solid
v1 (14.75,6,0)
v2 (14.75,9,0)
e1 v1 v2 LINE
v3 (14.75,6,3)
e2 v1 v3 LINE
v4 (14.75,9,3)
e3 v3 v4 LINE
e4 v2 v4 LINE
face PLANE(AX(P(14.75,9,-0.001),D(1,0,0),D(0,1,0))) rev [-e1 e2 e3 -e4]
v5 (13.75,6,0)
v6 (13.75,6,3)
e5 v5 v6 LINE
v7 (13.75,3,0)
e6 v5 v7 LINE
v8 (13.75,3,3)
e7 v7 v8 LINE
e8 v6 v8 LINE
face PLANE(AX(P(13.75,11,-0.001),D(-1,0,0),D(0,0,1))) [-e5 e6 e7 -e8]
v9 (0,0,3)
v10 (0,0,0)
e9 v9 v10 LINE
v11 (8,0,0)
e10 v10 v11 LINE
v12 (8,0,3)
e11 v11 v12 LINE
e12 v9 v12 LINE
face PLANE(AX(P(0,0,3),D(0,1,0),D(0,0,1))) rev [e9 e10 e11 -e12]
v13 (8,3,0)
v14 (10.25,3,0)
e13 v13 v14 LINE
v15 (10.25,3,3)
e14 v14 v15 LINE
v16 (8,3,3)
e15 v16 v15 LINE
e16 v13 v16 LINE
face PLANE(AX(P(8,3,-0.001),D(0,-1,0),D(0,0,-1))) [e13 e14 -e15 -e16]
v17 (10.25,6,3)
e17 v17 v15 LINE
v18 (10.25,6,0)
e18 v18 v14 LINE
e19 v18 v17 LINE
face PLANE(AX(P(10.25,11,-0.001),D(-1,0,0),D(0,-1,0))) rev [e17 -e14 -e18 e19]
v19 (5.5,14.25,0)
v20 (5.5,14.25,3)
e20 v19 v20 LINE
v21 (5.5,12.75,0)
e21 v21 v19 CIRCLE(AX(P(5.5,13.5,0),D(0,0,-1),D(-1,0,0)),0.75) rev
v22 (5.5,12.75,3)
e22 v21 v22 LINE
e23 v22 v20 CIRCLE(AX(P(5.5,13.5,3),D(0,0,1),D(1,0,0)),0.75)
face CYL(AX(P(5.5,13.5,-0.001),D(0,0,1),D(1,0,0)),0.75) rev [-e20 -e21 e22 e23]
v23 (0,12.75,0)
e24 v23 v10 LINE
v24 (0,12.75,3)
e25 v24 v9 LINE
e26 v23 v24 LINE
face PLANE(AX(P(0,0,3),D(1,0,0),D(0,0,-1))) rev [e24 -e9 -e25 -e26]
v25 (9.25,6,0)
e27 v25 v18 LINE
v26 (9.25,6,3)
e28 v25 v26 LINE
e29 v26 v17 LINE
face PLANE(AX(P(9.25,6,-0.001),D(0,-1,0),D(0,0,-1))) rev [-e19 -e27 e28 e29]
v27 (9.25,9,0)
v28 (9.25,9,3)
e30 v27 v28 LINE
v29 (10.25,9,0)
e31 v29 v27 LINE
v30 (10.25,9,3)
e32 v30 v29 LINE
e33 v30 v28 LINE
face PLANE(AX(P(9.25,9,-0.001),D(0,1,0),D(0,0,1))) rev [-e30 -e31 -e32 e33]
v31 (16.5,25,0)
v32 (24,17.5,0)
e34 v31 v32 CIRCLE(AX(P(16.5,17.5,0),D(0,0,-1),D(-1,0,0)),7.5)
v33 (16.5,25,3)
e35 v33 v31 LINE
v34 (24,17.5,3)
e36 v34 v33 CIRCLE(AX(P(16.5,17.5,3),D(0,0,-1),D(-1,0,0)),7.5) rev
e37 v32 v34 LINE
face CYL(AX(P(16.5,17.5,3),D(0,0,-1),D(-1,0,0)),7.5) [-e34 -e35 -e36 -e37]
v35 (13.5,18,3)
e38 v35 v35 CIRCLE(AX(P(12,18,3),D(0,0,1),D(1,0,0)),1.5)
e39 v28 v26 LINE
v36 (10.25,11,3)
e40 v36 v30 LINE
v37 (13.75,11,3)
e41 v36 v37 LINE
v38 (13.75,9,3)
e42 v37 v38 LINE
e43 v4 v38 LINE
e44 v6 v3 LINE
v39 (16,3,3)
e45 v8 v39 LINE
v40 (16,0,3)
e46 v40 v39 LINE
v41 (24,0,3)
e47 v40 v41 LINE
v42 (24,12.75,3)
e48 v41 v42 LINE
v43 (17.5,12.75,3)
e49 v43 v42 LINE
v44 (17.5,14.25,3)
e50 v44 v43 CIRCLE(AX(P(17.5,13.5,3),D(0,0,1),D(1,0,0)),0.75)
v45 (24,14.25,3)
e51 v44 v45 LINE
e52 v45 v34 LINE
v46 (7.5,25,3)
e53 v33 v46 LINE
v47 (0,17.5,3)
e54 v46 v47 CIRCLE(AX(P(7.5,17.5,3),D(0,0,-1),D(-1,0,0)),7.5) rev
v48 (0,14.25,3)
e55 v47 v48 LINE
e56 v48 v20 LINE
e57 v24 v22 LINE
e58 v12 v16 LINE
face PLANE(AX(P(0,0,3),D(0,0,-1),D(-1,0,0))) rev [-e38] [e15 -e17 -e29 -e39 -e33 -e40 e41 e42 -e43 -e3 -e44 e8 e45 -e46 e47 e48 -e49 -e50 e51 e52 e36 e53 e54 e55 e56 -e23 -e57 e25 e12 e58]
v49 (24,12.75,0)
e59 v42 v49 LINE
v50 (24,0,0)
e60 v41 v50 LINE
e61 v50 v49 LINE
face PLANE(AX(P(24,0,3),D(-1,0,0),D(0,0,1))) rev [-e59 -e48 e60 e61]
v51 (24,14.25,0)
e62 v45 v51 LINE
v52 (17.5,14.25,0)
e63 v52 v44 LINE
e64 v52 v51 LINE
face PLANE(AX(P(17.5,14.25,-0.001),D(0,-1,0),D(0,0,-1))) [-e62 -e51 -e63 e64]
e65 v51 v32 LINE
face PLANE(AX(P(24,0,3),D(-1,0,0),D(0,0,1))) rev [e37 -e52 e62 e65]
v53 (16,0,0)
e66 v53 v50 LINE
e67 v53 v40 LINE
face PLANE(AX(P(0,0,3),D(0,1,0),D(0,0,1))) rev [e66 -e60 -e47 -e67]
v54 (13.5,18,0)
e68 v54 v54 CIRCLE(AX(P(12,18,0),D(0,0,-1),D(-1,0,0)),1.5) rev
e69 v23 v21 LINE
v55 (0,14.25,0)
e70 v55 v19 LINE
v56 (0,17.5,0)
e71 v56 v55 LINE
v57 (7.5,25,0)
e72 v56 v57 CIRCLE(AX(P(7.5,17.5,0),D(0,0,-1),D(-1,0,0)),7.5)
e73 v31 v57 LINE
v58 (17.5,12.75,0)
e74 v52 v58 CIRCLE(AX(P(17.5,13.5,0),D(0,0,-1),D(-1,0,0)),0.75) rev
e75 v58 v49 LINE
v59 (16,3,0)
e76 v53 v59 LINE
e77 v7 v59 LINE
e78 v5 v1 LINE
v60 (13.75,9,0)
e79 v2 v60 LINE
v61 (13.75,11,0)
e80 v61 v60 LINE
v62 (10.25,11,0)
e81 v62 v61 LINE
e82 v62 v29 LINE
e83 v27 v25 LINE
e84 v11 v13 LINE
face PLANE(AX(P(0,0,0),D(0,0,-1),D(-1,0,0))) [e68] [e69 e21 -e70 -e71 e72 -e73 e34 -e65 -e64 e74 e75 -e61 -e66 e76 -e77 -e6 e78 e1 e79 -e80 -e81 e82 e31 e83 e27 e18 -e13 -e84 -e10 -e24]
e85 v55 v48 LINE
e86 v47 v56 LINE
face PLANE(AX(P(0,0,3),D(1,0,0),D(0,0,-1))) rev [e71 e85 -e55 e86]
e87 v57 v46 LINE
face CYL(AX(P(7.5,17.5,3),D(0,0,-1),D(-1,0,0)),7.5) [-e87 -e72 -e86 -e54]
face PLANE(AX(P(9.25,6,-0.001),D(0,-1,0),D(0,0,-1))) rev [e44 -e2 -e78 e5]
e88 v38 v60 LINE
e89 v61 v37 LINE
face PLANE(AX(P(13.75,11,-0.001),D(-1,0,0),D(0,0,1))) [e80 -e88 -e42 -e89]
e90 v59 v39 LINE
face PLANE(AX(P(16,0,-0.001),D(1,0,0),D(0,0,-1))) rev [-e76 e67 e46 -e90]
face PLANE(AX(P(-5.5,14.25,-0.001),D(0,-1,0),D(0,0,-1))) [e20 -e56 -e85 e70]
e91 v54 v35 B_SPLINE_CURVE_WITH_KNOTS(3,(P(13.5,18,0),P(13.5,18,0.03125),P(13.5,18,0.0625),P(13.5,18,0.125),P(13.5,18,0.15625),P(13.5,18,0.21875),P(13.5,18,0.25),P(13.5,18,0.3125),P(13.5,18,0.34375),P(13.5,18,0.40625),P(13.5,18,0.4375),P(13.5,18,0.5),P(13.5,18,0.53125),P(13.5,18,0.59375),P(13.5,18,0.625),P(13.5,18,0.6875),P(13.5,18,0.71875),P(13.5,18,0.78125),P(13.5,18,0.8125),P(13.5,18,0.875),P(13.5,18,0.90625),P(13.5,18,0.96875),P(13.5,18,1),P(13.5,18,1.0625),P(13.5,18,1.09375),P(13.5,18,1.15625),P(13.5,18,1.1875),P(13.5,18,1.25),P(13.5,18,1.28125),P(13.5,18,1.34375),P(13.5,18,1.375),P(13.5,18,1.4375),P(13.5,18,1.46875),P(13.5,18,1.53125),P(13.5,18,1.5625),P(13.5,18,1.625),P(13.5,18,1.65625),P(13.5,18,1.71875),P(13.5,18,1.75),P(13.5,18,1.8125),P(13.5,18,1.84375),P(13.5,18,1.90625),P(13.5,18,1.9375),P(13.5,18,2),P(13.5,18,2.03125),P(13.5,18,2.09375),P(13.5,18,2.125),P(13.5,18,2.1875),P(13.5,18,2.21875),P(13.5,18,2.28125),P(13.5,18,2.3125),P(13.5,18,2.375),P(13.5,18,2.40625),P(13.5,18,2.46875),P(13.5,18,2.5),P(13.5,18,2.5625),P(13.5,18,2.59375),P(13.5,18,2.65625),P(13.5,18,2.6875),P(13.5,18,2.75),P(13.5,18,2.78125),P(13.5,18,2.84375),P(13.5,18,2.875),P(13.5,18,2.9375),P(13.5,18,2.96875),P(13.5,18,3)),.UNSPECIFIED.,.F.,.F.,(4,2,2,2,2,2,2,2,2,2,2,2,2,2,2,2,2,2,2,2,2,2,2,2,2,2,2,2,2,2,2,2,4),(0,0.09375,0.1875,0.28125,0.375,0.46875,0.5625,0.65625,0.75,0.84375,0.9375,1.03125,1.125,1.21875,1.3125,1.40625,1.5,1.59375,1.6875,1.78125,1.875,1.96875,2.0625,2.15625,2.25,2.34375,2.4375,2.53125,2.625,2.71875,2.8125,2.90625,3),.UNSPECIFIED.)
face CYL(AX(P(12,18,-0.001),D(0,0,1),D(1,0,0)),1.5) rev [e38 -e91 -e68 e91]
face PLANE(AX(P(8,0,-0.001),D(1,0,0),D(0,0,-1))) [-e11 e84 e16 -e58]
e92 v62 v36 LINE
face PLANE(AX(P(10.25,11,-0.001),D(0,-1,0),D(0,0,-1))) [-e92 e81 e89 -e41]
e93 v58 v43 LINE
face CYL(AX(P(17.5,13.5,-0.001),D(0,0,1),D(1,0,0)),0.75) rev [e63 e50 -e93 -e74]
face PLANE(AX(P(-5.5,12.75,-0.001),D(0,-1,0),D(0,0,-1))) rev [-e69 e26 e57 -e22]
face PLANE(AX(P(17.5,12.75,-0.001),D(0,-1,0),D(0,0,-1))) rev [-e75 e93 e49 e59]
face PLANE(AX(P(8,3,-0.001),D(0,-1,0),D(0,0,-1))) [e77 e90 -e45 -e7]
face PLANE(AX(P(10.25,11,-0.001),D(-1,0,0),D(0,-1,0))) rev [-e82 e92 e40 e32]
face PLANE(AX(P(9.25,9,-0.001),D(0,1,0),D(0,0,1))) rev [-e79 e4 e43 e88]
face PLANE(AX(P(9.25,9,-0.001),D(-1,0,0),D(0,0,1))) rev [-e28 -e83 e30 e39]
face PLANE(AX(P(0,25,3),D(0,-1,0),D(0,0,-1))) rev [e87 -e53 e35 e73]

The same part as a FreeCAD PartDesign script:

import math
import FreeCAD as App
import Part
import Sketcher


def edges_at(feature, points):
    """Names of the edges that pass closest to the given points."""
    edges = feature.Shape.Edges
    near = lambda p: min(range(len(edges)), key=lambda i: edges[i].distToShape(Part.Vertex(*p))[0])
    return sorted({f"Edge{near(p) + 1}" for p in points})


def add_polygon(sketch, points):
    """Adds a closed chain of lines whose ends are joined by coincident constraints."""
    first, n = sketch.GeometryCount, len(points)
    for a, b in zip(points, points[1:] + points[:1]):
        sketch.addGeometry(Part.LineSegment(App.Vector(*a, 0), App.Vector(*b, 0)), False)
    for i in range(n):
        sketch.addConstraint(Sketcher.Constraint("Coincident", first + i, 2, first + (i + 1) % n, 1))

doc = App.newDocument("Part")
body = doc.addObject("PartDesign::Body", "Body")

sketch1 = body.newObject("Sketcher::SketchObject", "Sketch")
sketch1.AttachmentSupport = (doc.getObject("XY_Plane"), [""])
sketch1.MapMode = "FlatFace"
add_polygon(sketch1, [(0, 25), (0, 0), (24, 0), (24, 25)])
sketch1.addConstraint([
    Sketcher.Constraint("Vertical", 0),
    Sketcher.Constraint("Horizontal", 1),
    Sketcher.Constraint("Vertical", 2),
    Sketcher.Constraint("Horizontal", 3),
    Sketcher.Constraint("Coincident", 0, 2, -1, 1),
    Sketcher.Constraint("DistanceX", 1, 1, 1, 2, 24.0),
    Sketcher.Constraint("DistanceY", 0, 2, 0, 1, 25.0),
])
pad1 = body.newObject("PartDesign::Pad", "Pad")
pad1.Profile = sketch1
pad1.Length = 3
doc.recompute()

fillet = body.newObject("PartDesign::Fillet", "Fillet")
fillet.Base = (pad1, edges_at(pad1, [(0, 25, 1.5), (24, 25, 1.5)]))
fillet.Radius = 7.5

sketch2 = body.newObject("Sketcher::SketchObject", "Sketch001")
sketch2.AttachmentSupport = (doc.getObject("XY_Plane"), [""])
sketch2.MapMode = "FlatFace"
sketch2.AttachmentOffset = App.Placement(App.Vector(0, 0, 3), App.Rotation())
sketch2.addGeometry(Part.Circle(App.Vector(12, 18, 0), App.Vector(0, 0, 1), 1.5), False)
sketch2.addConstraint([
    Sketcher.Constraint("Diameter", 0, 3.0),
    Sketcher.Constraint("DistanceX", -1, 1, 0, 3, 12.0),
    Sketcher.Constraint("DistanceY", -1, 1, 0, 3, 18.0),
])
pocket1 = body.newObject("PartDesign::Pocket", "Pocket")
pocket1.Profile = sketch2
pocket1.Type = "UpToFirst"

sketch3 = body.newObject("Sketcher::SketchObject", "Sketch002")
sketch3.AttachmentSupport = (doc.getObject("XY_Plane"), [""])
sketch3.MapMode = "FlatFace"
sketch3.AttachmentOffset = App.Placement(App.Vector(0, 0, 3), App.Rotation())
add_polygon(sketch3, [(8, 3), (8, 0), (16, 0), (16, 3)])
sketch3.addConstraint([
    Sketcher.Constraint("Vertical", 0),
    Sketcher.Constraint("Horizontal", 1),
    Sketcher.Constraint("Vertical", 2),
    Sketcher.Constraint("Horizontal", 3),
    Sketcher.Constraint("PointOnObject", 0, 2, -1),
    Sketcher.Constraint("DistanceX", 1, 1, 1, 2, 8.0),
    Sketcher.Constraint("DistanceY", 0, 2, 0, 1, 3.0),
    Sketcher.Constraint("DistanceX", -1, 1, 0, 2, 8.0),
])
pocket2 = body.newObject("PartDesign::Pocket", "Pocket001")
pocket2.Profile = sketch3
pocket2.Type = "UpToFirst"

sketch4 = body.newObject("Sketcher::SketchObject", "Sketch003")
sketch4.AttachmentSupport = (doc.getObject("XY_Plane"), [""])
sketch4.MapMode = "FlatFace"
sketch4.AttachmentOffset = App.Placement(App.Vector(0, 0, 3), App.Rotation())
add_polygon(sketch4, [(9.2, 9), (9.2, 6), (14.8, 6), (14.8, 9)])
sketch4.addConstraint([
    Sketcher.Constraint("Vertical", 0),
    Sketcher.Constraint("Horizontal", 1),
    Sketcher.Constraint("Vertical", 2),
    Sketcher.Constraint("Horizontal", 3),
    Sketcher.Constraint("DistanceY", 0, 2, 0, 1, 3.0),
    Sketcher.Constraint("DistanceX", 1, 1, 1, 2, 5.5),
    Sketcher.Constraint("DistanceY", -1, 1, 0, 2, 6.0),
    Sketcher.Constraint("DistanceX", -1, 1, 0, 2, 9.25),
])
pocket3 = body.newObject("PartDesign::Pocket", "Pocket002")
pocket3.Profile = sketch4
pocket3.Type = "UpToFirst"

sketch5 = body.newObject("Sketcher::SketchObject", "Sketch004")
sketch5.AttachmentSupport = (doc.getObject("XY_Plane"), [""])
sketch5.MapMode = "FlatFace"
add_polygon(sketch5, [(10.2, 11), (10.2, 0), (13.8, 0), (13.8, 11)])
sketch5.addConstraint([
    Sketcher.Constraint("Vertical", 0),
    Sketcher.Constraint("Horizontal", 1),
    Sketcher.Constraint("Vertical", 2),
    Sketcher.Constraint("Horizontal", 3),
    Sketcher.Constraint("PointOnObject", 0, 2, -1),
    Sketcher.Constraint("DistanceY", 0, 2, 0, 1, 11.0),
    Sketcher.Constraint("DistanceX", 1, 1, 1, 2, 3.5),
    Sketcher.Constraint("DistanceX", -1, 1, 0, 2, 10.25),
])
pocket4 = body.newObject("PartDesign::Pocket", "Pocket003")
pocket4.Profile = sketch5
pocket4.Length = 3
pocket4.Reversed = True

sketch6 = body.newObject("Sketcher::SketchObject", "Sketch005")
sketch6.AttachmentSupport = (doc.getObject("XY_Plane"), [""])
sketch6.MapMode = "FlatFace"
sketch6.AttachmentOffset = App.Placement(App.Vector(0, 0, 3), App.Rotation())
sketch6.addGeometry([
    Part.LineSegment(App.Vector(30.5, 14.2, 0), App.Vector(17.5, 14.2, 0)),
    Part.ArcOfCircle(Part.Circle(App.Vector(17.5, 13.5, 0), App.Vector(0, 0, 1), 0.8), math.radians(90), math.radians(270)),
    Part.LineSegment(App.Vector(17.5, 12.8, 0), App.Vector(30.5, 12.8, 0)),
    Part.ArcOfCircle(Part.Circle(App.Vector(30.5, 13.5, 0), App.Vector(0, 0, 1), 0.8), math.radians(-90), math.radians(90)),
], False)
sketch6.addConstraint([
    Sketcher.Constraint("Tangent", 0, 2, 1, 1),
    Sketcher.Constraint("Tangent", 1, 2, 2, 1),
    Sketcher.Constraint("Tangent", 2, 2, 3, 1),
    Sketcher.Constraint("Tangent", 3, 2, 0, 1),
    Sketcher.Constraint("Horizontal", 0),
    Sketcher.Constraint("Horizontal", 2),
    Sketcher.Constraint("DistanceX", 0, 2, 0, 1, 13.0),
    Sketcher.Constraint("Radius", 1, 0.75),
    Sketcher.Constraint("DistanceX", -1, 1, 1, 3, 17.5),
    Sketcher.Constraint("DistanceY", -1, 1, 1, 3, 13.5),
])
pocket5 = body.newObject("PartDesign::Pocket", "Pocket004")
pocket5.Profile = sketch6
pocket5.Type = "UpToFirst"

sketch7 = body.newObject("Sketcher::SketchObject", "Sketch006")
sketch7.AttachmentSupport = (doc.getObject("XY_Plane"), [""])
sketch7.MapMode = "FlatFace"
sketch7.AttachmentOffset = App.Placement(App.Vector(0, 0, 3), App.Rotation())
sketch7.addGeometry([
    Part.LineSegment(App.Vector(5.5, 14.2, 0), App.Vector(-5.5, 14.2, 0)),
    Part.ArcOfCircle(Part.Circle(App.Vector(-5.5, 13.5, 0), App.Vector(0, 0, 1), 0.8), math.radians(90), math.radians(270)),
    Part.LineSegment(App.Vector(-5.5, 12.8, 0), App.Vector(5.5, 12.8, 0)),
    Part.ArcOfCircle(Part.Circle(App.Vector(5.5, 13.5, 0), App.Vector(0, 0, 1), 0.8), math.radians(-90), math.radians(90)),
], False)
sketch7.addConstraint([
    Sketcher.Constraint("Tangent", 0, 2, 1, 1),
    Sketcher.Constraint("Tangent", 1, 2, 2, 1),
    Sketcher.Constraint("Tangent", 2, 2, 3, 1),
    Sketcher.Constraint("Tangent", 3, 2, 0, 1),
    Sketcher.Constraint("Horizontal", 0),
    Sketcher.Constraint("Horizontal", 2),
    Sketcher.Constraint("DistanceX", 0, 2, 0, 1, 11.0),
    Sketcher.Constraint("Radius", 1, 0.75),
    Sketcher.Constraint("DistanceX", 1, 3, -1, 1, 5.5),
    Sketcher.Constraint("DistanceY", -1, 1, 1, 3, 13.5),
])
pocket6 = body.newObject("PartDesign::Pocket", "Pocket005")
pocket6.Profile = sketch7
pocket6.Type = "UpToFirst"

doc.recompute()
